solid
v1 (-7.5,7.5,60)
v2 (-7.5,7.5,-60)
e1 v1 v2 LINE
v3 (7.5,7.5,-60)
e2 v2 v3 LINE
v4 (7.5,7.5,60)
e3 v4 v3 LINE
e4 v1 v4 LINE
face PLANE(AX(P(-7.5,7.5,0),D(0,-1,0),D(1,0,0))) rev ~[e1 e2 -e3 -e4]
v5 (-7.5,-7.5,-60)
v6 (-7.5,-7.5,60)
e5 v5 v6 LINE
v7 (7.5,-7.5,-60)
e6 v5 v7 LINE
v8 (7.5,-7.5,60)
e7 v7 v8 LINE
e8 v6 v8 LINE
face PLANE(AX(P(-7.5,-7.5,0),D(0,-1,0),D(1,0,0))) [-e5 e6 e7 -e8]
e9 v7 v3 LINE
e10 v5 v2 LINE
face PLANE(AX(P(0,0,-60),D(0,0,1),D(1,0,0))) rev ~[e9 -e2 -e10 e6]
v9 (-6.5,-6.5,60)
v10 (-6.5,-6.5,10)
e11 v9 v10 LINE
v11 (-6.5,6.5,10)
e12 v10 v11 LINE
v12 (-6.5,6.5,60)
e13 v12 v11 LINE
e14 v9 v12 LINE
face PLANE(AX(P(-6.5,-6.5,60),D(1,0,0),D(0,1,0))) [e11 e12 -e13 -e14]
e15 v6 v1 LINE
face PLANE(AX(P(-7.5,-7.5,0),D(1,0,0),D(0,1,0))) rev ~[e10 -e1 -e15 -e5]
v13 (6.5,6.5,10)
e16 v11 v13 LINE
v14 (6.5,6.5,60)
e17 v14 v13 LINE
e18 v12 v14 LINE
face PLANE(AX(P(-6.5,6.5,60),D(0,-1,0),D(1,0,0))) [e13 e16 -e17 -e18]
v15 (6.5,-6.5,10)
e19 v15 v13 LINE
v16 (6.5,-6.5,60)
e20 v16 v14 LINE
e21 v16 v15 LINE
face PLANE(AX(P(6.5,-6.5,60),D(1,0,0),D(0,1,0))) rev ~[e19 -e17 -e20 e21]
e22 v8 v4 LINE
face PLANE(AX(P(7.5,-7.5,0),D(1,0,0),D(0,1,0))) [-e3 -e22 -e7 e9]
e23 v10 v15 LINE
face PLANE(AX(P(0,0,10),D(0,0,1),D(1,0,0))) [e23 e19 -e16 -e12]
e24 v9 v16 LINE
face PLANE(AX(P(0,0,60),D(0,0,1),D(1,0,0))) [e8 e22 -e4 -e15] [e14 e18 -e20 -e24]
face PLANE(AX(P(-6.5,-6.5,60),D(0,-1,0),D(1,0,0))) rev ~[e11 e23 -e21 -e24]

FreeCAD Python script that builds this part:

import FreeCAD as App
import Part
import Sketcher
Q = App.Units.Quantity


def add_polygon(sketch, points):
    """Adds a closed chain of lines whose ends are joined by coincident constraints."""
    first, n = sketch.GeometryCount, len(points)
    for a, b in zip(points, points[1:] + points[:1]):
        sketch.addGeometry(Part.LineSegment(App.Vector(*a, 0), App.Vector(*b, 0)), False)
    for i in range(n):
        sketch.addConstraint(Sketcher.Constraint("Coincident", first + i, 2, first + (i + 1) % n, 1))

doc = App.newDocument("Part")
params = doc.addObject("Spreadsheet::Sheet", "Params")
for row, (alias, value) in enumerate([
    ("sketch1_width", "15 mm"),
    ("pad1_length", "60 mm"),
    ("pad1_length2", "60 mm"),
    ("sketch2_width", "13 mm"),
    ("pocket1_length", "50 mm"),
], start=1):
    params.set(f"A{row}", alias)
    params.set(f"B{row}", "=" + value)
    params.setAlias(f"B{row}", alias)

body = doc.addObject("PartDesign::Body", "Body")

sketch1 = body.newObject("Sketcher::SketchObject", "Sketch")
sketch1.AttachmentSupport = (doc.getObject("XY_Plane"), [""])
sketch1.MapMode = "FlatFace"
add_polygon(sketch1, [(-8, 8), (-8, -8), (8, -8), (8, 8)])
sketch1.addConstraint([
    Sketcher.Constraint("Vertical", 0),
    Sketcher.Constraint("Horizontal", 1),
    Sketcher.Constraint("Vertical", 2),
    Sketcher.Constraint("Horizontal", 3),
    Sketcher.Constraint("Symmetric", 0, 2, 2, 2, -1, 1),
    Sketcher.Constraint("Equal", 3, 0),
    Sketcher.Constraint("DistanceX", 1, 1, 1, 2, Q("15 mm")),
])
sketch1.setExpression("Constraints[10]", "Params.sketch1_width")
pad1 = body.newObject("PartDesign::Pad", "Pad")
pad1.Profile = sketch1
pad1.Type = "TwoLengths"
pad1.setExpression("Length", "Params.pad1_length")
pad1.setExpression("Length2", "Params.pad1_length2")

sketch2 = body.newObject("Sketcher::SketchObject", "Sketch001")
sketch2.AttachmentSupport = (doc.getObject("XY_Plane"), [""])
sketch2.MapMode = "FlatFace"
sketch2.AttachmentOffset = App.Placement(App.Vector(0, 0, 60), App.Rotation())
add_polygon(sketch2, [(-6, 6), (-6, -6), (6, -6), (6, 6)])
sketch2.addConstraint([
    Sketcher.Constraint("Vertical", 0),
    Sketcher.Constraint("Horizontal", 1),
    Sketcher.Constraint("Vertical", 2),
    Sketcher.Constraint("Horizontal", 3),
    Sketcher.Constraint("Symmetric", 0, 2, 2, 2, -1, 1),
    Sketcher.Constraint("Equal", 3, 0),
    Sketcher.Constraint("DistanceX", 1, 1, 1, 2, Q("13 mm")),
])
sketch2.setExpression("Constraints[10]", "Params.sketch2_width")
pocket1 = body.newObject("PartDesign::Pocket", "Pocket")
pocket1.Profile = sketch2
pocket1.setExpression("Length", "Params.pocket1_length")

doc.recompute()
